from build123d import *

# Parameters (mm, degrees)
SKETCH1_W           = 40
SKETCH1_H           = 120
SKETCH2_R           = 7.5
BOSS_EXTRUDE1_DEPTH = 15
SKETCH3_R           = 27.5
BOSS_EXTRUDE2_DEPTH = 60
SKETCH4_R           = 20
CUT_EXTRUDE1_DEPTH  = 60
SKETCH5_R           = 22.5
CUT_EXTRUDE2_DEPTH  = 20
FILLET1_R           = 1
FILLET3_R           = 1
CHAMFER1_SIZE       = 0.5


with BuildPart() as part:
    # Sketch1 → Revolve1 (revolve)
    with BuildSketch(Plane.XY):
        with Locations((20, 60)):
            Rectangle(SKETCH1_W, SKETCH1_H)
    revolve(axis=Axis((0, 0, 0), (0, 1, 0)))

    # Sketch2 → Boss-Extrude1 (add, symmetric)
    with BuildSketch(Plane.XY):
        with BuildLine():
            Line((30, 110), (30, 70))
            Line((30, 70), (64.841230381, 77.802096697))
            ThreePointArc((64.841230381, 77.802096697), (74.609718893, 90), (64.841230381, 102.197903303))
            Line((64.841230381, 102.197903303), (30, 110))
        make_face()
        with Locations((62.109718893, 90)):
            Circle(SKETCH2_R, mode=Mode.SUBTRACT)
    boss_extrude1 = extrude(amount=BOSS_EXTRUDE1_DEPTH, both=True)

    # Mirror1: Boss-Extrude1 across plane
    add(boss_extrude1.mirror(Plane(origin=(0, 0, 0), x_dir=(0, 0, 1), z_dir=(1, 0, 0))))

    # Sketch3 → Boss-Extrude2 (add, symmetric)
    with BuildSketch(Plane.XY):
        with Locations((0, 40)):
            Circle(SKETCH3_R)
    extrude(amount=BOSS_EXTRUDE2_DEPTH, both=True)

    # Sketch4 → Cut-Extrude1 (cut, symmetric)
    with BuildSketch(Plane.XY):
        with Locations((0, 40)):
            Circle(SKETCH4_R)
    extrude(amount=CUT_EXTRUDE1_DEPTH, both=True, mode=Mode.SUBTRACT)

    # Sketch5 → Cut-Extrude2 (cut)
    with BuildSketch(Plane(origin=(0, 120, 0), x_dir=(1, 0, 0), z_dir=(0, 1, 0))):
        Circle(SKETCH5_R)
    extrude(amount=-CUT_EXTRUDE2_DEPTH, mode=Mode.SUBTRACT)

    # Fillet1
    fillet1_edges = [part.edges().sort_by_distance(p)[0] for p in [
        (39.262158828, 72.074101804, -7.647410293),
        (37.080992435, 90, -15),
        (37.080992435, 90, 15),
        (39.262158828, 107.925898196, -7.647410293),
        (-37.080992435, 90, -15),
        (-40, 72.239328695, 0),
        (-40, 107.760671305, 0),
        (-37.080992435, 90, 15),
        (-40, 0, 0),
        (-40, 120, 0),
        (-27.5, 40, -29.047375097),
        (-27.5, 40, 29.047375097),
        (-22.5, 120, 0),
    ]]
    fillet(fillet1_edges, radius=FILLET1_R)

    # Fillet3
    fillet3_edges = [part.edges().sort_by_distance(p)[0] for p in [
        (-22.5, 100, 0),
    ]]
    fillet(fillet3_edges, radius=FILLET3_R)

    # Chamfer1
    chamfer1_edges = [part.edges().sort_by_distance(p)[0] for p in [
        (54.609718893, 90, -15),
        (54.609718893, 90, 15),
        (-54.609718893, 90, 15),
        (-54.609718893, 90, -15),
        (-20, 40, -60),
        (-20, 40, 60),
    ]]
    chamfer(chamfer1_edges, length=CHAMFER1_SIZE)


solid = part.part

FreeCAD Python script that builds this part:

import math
import FreeCAD as App
import Part
import Sketcher


def edges_at(feature, points):
    """Names of the edges that pass closest to the given points."""
    edges = feature.Shape.Edges
    near = lambda p: min(range(len(edges)), key=lambda i: edges[i].distToShape(Part.Vertex(*p))[0])
    return sorted({f"Edge{near(p) + 1}" for p in points})

doc = App.newDocument("Part")
body = doc.addObject("PartDesign::Body", "Body")

# Sketch on XY plane
sketch1 = body.newObject("Sketcher::SketchObject", "Sketch")
sketch1.AttachmentSupport = (doc.getObject("XY_Plane"), [""])
sketch1.MapMode = "FlatFace"
sketch1.addGeometry([
    Part.LineSegment(App.Vector(0, 120, 0), App.Vector(0, 0, 0)),
    Part.LineSegment(App.Vector(0, 0, 0), App.Vector(40, 0, 0)),
    Part.LineSegment(App.Vector(40, 0, 0), App.Vector(40, 120, 0)),
    Part.LineSegment(App.Vector(40, 120, 0), App.Vector(0, 120, 0)),
], False)
sketch1.addConstraint([
    Sketcher.Constraint("Coincident", 0, 2, 1, 1),
    Sketcher.Constraint("Coincident", 1, 2, 2, 1),
    Sketcher.Constraint("Coincident", 2, 2, 3, 1),
    Sketcher.Constraint("Coincident", 3, 2, 0, 1),
    Sketcher.Constraint("Vertical", 0),
    Sketcher.Constraint("Horizontal", 1),
    Sketcher.Constraint("Vertical", 2),
    Sketcher.Constraint("Horizontal", 3),
    Sketcher.Constraint("Coincident", 0, 2, -1, 1),
    Sketcher.Constraint("DistanceX", 1, 1, 1, 2, 40.0),
    Sketcher.Constraint("DistanceY", 0, 2, 0, 1, 120.0),
])
revolution = body.newObject("PartDesign::Revolution", "Revolution")
revolution.Profile = sketch1
revolution.ReferenceAxis = (sketch1, ["V_Axis"])
revolution.Angle = 360

# Sketch on XY plane
sketch2 = body.newObject("Sketcher::SketchObject", "Sketch001")
sketch2.AttachmentSupport = (doc.getObject("XY_Plane"), [""])
sketch2.MapMode = "FlatFace"
sketch2.addGeometry([
    Part.LineSegment(App.Vector(30, 110, 0), App.Vector(30, 70, 0)),  # 0
    Part.LineSegment(App.Vector(30, 70, 0), App.Vector(64.84123, 77.802097, 0)),  # 1
    Part.ArcOfCircle(Part.Circle(App.Vector(62.109719, 90, 0), App.Vector(0, 0, 1), 12.5), math.radians(-77.377826), math.radians(77.377826)),  # 2
    Part.LineSegment(App.Vector(64.84123, 102.197903, 0), App.Vector(30, 110, 0)),  # 3
    Part.Circle(App.Vector(62.109719, 90, 0), App.Vector(0, 0, 1), 7.5),  # 4
], False)
sketch2.addConstraint([
    Sketcher.Constraint("Coincident", 0, 2, 1, 1),
    Sketcher.Constraint("Tangent", 1, 2, 2, 1),
    Sketcher.Constraint("Tangent", 2, 2, 3, 1),
    Sketcher.Constraint("Coincident", 3, 2, 0, 1),
    Sketcher.Constraint("Vertical", 0),
    Sketcher.Constraint("Coincident", 4, 3, 2, 3),
    Sketcher.Constraint("Vertical", 1, 2, 2, 2),
    Sketcher.Constraint("Diameter", 4, 15.0),
    Sketcher.Constraint("Radius", 2, 12.5),
    Sketcher.Constraint("DistanceY", 0, 2, 0, 1, 40.0),
    Sketcher.Constraint("DistanceY", -1, 1, 2, 3, 90.0),
    Sketcher.Constraint("DistanceX", -1, 1, 0, 2, 30.0),
    Sketcher.Constraint("Distance", 1, 35.704118),
])
pad1 = body.newObject("PartDesign::Pad", "Pad")
pad1.Profile = sketch2
pad1.Length = 30
pad1.Midplane = True
doc.recompute()

mirrored = body.newObject("PartDesign::Mirrored", "Mirrored")
mirrored.Originals = [pad1]
mirrored.MirrorPlane = (doc.getObject("YZ_Plane"), [""])
body.Tip = mirrored

# Sketch on XY plane
sketch3 = body.newObject("Sketcher::SketchObject", "Sketch002")
sketch3.AttachmentSupport = (doc.getObject("XY_Plane"), [""])
sketch3.MapMode = "FlatFace"
sketch3.addGeometry(Part.Circle(App.Vector(0, 40, 0), App.Vector(0, 0, 1), 27.5), False)
sketch3.addConstraint([
    Sketcher.Constraint("PointOnObject", 0, 3, -2),
    Sketcher.Constraint("Diameter", 0, 55.0),
    Sketcher.Constraint("DistanceY", -1, 1, 0, 3, 40.0),
])
pad2 = body.newObject("PartDesign::Pad", "Pad001")
pad2.Profile = sketch3
pad2.Length = 120
pad2.Midplane = True

# Sketch on XY plane
sketch4 = body.newObject("Sketcher::SketchObject", "Sketch003")
sketch4.AttachmentSupport = (doc.getObject("XY_Plane"), [""])
sketch4.MapMode = "FlatFace"
sketch4.addGeometry(Part.Circle(App.Vector(0, 40, 0), App.Vector(0, 0, 1), 20), False)
sketch4.addConstraint([
    Sketcher.Constraint("PointOnObject", 0, 3, -2),
    Sketcher.Constraint("Diameter", 0, 40.0),
    Sketcher.Constraint("DistanceY", -1, 1, 0, 3, 40.0),
])
pocket1 = body.newObject("PartDesign::Pocket", "Pocket")
pocket1.Profile = sketch4
pocket1.Length = 120
pocket1.Midplane = True

# Sketch on XZ plane
sketch5 = body.newObject("Sketcher::SketchObject", "Sketch004")
sketch5.AttachmentSupport = (doc.getObject("XZ_Plane"), [""])
sketch5.MapMode = "FlatFace"
sketch5.AttachmentOffset = App.Placement(App.Vector(0, 0, -120), App.Rotation())
sketch5.addGeometry(Part.Circle(App.Vector(0, 0, 0), App.Vector(0, 0, 1), 22.5), False)
sketch5.addConstraint([
    Sketcher.Constraint("Coincident", 0, 3, -1, 1),
    Sketcher.Constraint("Diameter", 0, 45.0),
])
pocket2 = body.newObject("PartDesign::Pocket", "Pocket001")
pocket2.Profile = sketch5
pocket2.Length = 20
pocket2.Reversed = True
doc.recompute()

fillet = body.newObject("PartDesign::Fillet", "Fillet")
fillet.Base = (pocket2, edges_at(pocket2, [
    (39.262, 72.074, -7.647),
    (37.081, 90, -15),
    (37.081, 90, 15),
    (39.262, 107.926, -7.647),
    (-37.081, 90, -15),
    (-40, 72.239, 0),
    (-40, 107.761, 0),
    (-37.081, 90, 15),
    (-40, 0, 0),
    (-40, 120, 0),
    (-27.5, 40, -29.047),
    (-27.5, 40, 29.047),
    (-22.5, 120, 0),
]))
fillet.Radius = 1
doc.recompute()

fillet2 = body.newObject("PartDesign::Fillet", "Fillet001")
fillet2.Base = (fillet, edges_at(fillet, [(-22.5, 100, 0)]))
fillet2.Radius = 1
doc.recompute()

chamfer = body.newObject("PartDesign::Chamfer", "Chamfer")
chamfer.Base = (fillet2, edges_at(fillet2, [
    (54.61, 90, -15),
    (54.61, 90, 15),
    (-54.61, 90, 15),
    (-54.61, 90, -15),
    (-20, 40, -60),
    (-20, 40, 60),
]))
chamfer.Size = 0.5

doc.recompute()
